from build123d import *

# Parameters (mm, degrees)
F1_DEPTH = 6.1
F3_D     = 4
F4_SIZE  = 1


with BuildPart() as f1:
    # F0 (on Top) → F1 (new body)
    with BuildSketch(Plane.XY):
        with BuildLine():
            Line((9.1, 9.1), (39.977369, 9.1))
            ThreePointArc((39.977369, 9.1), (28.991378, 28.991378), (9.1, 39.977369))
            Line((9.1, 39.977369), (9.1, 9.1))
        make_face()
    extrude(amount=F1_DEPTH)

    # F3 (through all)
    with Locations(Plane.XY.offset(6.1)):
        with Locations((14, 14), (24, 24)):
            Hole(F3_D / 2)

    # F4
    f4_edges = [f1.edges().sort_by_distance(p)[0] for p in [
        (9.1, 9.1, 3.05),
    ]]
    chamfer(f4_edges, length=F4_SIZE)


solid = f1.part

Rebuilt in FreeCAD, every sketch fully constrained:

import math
import FreeCAD as App
import Part
import Sketcher

V = App.Vector


def edges_at(feature, points):
    """Names of the edges that pass closest to the given points."""
    edges = feature.Shape.Edges
    near = lambda p: min(range(len(edges)), key=lambda i: edges[i].distToShape(Part.Vertex(*p))[0])
    return sorted({f"Edge{near(p) + 1}" for p in points})

doc = App.newDocument("Part")
body = doc.addObject("PartDesign::Body", "Body")

# Sketch on XY plane
sketch1 = doc.addObject("Sketcher::SketchObject", "Sketch")
body.addObject(sketch1)
sketch1.AttachmentSupport = (doc.XY_Plane, [""])
sketch1.MapMode = "FlatFace"
sketch1.addGeometry([
    Part.LineSegment(V(9, 9, 0), V(40, 9, 0)),
    Part.ArcOfCircle(Part.Circle(V(0, 0, 0), V(0, 0, 1), 41), math.radians(13), math.radians(77)),
    Part.LineSegment(V(9, 40, 0), V(9, 9, 0)),
], False)
sketch1.addConstraint([
    Sketcher.Constraint("Coincident", 0, 2, 1, 1),
    Sketcher.Constraint("Coincident", 1, 2, 2, 1),
    Sketcher.Constraint("Coincident", 2, 2, 0, 1),
    Sketcher.Constraint("Horizontal", 0),
    Sketcher.Constraint("Vertical", 2),
    Sketcher.Constraint("Coincident", 1, 3, -1, 1),
    Sketcher.Constraint("Equal", 0, 2),
    Sketcher.Constraint("DistanceY", -1, 1, 0, 2, 9.1),
    Sketcher.Constraint("Radius", 1, 41.000003),
])
pad1 = doc.addObject("PartDesign::Pad", "Pad")
body.addObject(pad1)
pad1.Profile = sketch1
pad1.Length = 6.1

# Sketch on XY plane
sketch2 = doc.addObject("Sketcher::SketchObject", "Sketch001")
body.addObject(sketch2)
sketch2.AttachmentSupport = (doc.XY_Plane, [""])
sketch2.MapMode = "FlatFace"
sketch2.AttachmentOffset = App.Placement(V(0, 0, 6.1), App.Rotation())
sketch2.addGeometry([
    Part.Circle(V(14, 14, 0), V(0, 0, 1), 2),
    Part.Circle(V(24, 24, 0), V(0, 0, 1), 2),
], False)
sketch2.addConstraint([
    Sketcher.Constraint("Equal", 0, 1),
    Sketcher.Constraint("Diameter", 0, 4.0),
    Sketcher.Constraint("DistanceX", -1, 1, 0, 3, 14.0),
    Sketcher.Constraint("DistanceY", -1, 1, 0, 3, 14.0),
    Sketcher.Constraint("DistanceX", -1, 1, 1, 3, 24.0),
    Sketcher.Constraint("DistanceY", -1, 1, 1, 3, 24.0),
])
doc.recompute()
hole = doc.addObject("PartDesign::Hole", "Hole")
body.addObject(hole)
hole.Profile = sketch2
hole.ThreadType = "None"
hole.Diameter = 4
hole.DepthType = "ThroughAll"
doc.recompute()

chamfer = doc.addObject("PartDesign::Chamfer", "Chamfer")
body.addObject(chamfer)
chamfer.Base = (hole, edges_at(hole, [(9.1, 9.1, 3.05)]))
chamfer.Size = 1

doc.recompute()
